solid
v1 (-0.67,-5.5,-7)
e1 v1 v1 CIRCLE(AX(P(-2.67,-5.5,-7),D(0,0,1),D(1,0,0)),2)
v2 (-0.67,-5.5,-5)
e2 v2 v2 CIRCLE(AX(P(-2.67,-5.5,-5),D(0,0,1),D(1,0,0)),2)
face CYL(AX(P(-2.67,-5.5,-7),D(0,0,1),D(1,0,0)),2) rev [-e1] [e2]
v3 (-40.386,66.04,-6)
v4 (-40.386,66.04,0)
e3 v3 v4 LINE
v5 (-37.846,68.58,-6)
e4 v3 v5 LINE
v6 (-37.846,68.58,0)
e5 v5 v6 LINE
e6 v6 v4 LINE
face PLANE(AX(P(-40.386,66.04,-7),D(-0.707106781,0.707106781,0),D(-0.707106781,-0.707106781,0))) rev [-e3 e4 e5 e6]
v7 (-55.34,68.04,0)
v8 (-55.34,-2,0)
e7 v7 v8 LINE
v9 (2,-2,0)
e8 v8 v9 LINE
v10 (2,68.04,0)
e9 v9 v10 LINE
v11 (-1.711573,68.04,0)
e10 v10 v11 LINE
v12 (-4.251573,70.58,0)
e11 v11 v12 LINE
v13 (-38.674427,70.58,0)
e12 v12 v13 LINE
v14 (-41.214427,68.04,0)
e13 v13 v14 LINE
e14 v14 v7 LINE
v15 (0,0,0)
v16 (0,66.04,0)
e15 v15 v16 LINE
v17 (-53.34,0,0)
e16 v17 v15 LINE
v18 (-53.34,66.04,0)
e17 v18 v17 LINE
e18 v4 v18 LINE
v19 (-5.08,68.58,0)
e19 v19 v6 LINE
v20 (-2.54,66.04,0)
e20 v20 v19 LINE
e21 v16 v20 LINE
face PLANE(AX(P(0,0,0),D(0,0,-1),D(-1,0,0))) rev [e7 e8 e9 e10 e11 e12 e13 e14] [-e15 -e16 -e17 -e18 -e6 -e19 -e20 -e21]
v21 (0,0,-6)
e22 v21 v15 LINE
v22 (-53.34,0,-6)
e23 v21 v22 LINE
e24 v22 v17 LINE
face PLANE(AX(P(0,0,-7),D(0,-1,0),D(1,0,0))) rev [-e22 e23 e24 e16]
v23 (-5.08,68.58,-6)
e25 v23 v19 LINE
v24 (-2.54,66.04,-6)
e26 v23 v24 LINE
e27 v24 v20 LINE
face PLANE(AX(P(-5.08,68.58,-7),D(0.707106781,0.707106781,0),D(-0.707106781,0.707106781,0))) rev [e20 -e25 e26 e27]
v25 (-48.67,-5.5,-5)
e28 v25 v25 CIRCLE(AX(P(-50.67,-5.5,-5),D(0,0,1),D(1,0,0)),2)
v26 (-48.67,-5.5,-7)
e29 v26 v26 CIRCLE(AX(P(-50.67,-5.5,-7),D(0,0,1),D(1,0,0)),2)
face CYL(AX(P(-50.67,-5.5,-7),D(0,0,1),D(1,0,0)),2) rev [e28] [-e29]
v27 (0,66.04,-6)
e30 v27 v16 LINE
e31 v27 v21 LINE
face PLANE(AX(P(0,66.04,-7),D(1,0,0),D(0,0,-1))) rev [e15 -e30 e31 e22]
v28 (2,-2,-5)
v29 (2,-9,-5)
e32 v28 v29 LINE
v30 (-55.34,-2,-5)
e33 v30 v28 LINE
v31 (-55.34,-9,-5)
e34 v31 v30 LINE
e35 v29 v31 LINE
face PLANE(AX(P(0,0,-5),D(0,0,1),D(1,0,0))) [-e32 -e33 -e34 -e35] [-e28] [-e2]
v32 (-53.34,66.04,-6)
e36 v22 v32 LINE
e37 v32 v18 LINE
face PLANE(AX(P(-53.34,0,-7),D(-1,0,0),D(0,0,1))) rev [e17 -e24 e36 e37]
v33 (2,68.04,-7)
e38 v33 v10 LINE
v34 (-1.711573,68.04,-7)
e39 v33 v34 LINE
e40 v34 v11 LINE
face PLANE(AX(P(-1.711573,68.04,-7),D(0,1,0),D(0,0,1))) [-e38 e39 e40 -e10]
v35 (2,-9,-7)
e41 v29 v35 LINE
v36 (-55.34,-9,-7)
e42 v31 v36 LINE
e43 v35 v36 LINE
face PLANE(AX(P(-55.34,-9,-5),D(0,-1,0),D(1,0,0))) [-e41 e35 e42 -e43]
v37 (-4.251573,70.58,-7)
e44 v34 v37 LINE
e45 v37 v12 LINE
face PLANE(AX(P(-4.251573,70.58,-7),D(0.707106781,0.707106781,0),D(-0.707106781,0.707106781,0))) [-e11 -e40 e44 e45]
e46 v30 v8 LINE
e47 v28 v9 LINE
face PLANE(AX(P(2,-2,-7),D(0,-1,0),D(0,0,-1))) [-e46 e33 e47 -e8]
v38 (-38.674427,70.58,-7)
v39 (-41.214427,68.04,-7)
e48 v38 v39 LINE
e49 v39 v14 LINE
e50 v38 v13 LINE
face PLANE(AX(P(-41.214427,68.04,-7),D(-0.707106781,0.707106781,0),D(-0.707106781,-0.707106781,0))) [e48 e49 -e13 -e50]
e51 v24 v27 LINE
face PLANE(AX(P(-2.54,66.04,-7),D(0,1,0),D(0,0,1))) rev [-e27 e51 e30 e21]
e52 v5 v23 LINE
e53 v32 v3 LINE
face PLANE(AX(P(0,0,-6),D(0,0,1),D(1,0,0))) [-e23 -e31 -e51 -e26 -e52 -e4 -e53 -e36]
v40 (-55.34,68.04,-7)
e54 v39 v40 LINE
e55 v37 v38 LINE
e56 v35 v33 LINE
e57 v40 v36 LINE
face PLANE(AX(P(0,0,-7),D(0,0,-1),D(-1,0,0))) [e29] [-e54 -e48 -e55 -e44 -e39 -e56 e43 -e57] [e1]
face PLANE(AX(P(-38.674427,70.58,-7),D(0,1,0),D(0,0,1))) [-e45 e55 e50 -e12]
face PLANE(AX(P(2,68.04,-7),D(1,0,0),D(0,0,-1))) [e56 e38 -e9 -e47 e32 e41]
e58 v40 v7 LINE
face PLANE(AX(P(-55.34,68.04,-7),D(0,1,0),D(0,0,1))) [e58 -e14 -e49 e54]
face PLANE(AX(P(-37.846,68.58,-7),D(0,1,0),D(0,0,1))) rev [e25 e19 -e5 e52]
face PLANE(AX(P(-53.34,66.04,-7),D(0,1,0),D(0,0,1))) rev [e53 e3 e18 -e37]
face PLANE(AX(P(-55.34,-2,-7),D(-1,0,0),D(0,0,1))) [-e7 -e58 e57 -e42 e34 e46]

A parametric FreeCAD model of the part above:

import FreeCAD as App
import Part
import Sketcher

V = App.Vector
Q = App.Units.Quantity


def add_polygon(sketch, points):
    """Adds a closed chain of lines whose ends are joined by coincident constraints."""
    first, n = sketch.GeometryCount, len(points)
    for a, b in zip(points, points[1:] + points[:1]):
        sketch.addGeometry(Part.LineSegment(App.Vector(*a, 0), App.Vector(*b, 0)), False)
    for i in range(n):
        sketch.addConstraint(Sketcher.Constraint("Coincident", first + i, 2, first + (i + 1) % n, 1))

doc = App.newDocument("Part")
body = doc.addObject("PartDesign::Body", "Body")

# Sketch on XY plane
sketch1 = body.newObject("Sketcher::SketchObject", "Sketch")
sketch1.AttachmentSupport = (doc.getObject("XY_Plane"), [""])
sketch1.MapMode = "FlatFace"
add_polygon(sketch1, [(-55.34, -2), (2, -2), (2, 68.04), (-1.711573, 68.04), (-4.251573, 70.58), (-38.674427, 70.58), (-41.214427, 68.04), (-55.34, 68.04)])  # lines 0-7
add_polygon(sketch1, [(-53.34, 0), (-53.34, 66.04), (-40.386, 66.04), (-37.846, 68.58), (-5.08, 68.58), (-2.54, 66.04), (0, 66.04), (0, 0)])  # lines 8-15
sketch1.addConstraint([
    Sketcher.Constraint("Horizontal", 0),
    Sketcher.Constraint("Vertical", 1),
    Sketcher.Constraint("Horizontal", 2),
    Sketcher.Constraint("Horizontal", 4),
    Sketcher.Constraint("Horizontal", 6),
    Sketcher.Constraint("Vertical", 7),
    Sketcher.Constraint("Vertical", 8),
    Sketcher.Constraint("Horizontal", 9),
    Sketcher.Constraint("Horizontal", 11),
    Sketcher.Constraint("Horizontal", 13),
    Sketcher.Constraint("Vertical", 14),
    Sketcher.Constraint("Horizontal", 15),
    Sketcher.Constraint("Coincident", 14, 2, -1, 1),
    Sketcher.Constraint("Perpendicular", 3, 5),
    Sketcher.Constraint("Parallel", 5, 10),
    Sketcher.Constraint("Perpendicular", 10, 12),
    Sketcher.Constraint("Horizontal", 2, 2, 5, 2),
    Sketcher.Constraint("Horizontal", 9, 2, 12, 2),
    Sketcher.Constraint("Equal", 3, 5),
    Sketcher.Constraint("Equal", 5, 10),
    Sketcher.Constraint("DistanceX", 13, 1, 13, 2, Q("0.1 in")),
    Sketcher.Constraint("DistanceX", 15, 2, 15, 1, Q("2.1 in")),
    Sketcher.Constraint("DistanceY", 8, 1, 8, 2, Q("2.6 in")),
    Sketcher.Constraint("DistanceX", 9, 1, 9, 2, Q("0.51 in")),
    Sketcher.Constraint("DistanceX", 11, 1, 11, 2, Q("1.29 in")),
    Sketcher.Constraint("DistanceX", 0, 1, 0, 2, Q("57.34 mm")),
    Sketcher.Constraint("DistanceY", 1, 1, 1, 2, Q("70.04 mm")),
    Sketcher.Constraint("DistanceX", -1, 1, 0, 2, Q("2 mm")),
    Sketcher.Constraint("DistanceY", 0, 2, -1, 1, Q("2 mm")),
    Sketcher.Constraint("DistanceX", 2, 2, 2, 1, Q("3.711573 mm")),
    Sketcher.Constraint("DistanceX", 4, 2, 4, 1, Q("34.422854 mm")),
])
pad1 = body.newObject("PartDesign::Pad", "Pad")
pad1.Profile = sketch1
pad1.Length = 7
pad1.Reversed = True

# Sketch on XY plane
sketch2 = body.newObject("Sketcher::SketchObject", "Sketch001")
sketch2.AttachmentSupport = (doc.getObject("XY_Plane"), [""])
sketch2.MapMode = "FlatFace"
sketch2.AttachmentOffset = App.Placement(V(0, 0, -7), App.Rotation())
add_polygon(sketch2, [(0, 0), (-53.34, 0), (-53.34, 66.04), (-40.386, 66.04), (-37.846, 68.58), (-5.08, 68.58), (-2.54, 66.04), (0, 66.04)])  # lines 0-7
sketch2.addConstraint([
    Sketcher.Constraint("Horizontal", 0),
    Sketcher.Constraint("Vertical", 1),
    Sketcher.Constraint("Horizontal", 2),
    Sketcher.Constraint("Horizontal", 4),
    Sketcher.Constraint("Horizontal", 6),
    Sketcher.Constraint("Vertical", 7),
    Sketcher.Constraint("Coincident", 7, 2, -1, 1),
    Sketcher.Constraint("Perpendicular", 3, 5),
    Sketcher.Constraint("Horizontal", 2, 2, 5, 2),
    Sketcher.Constraint("Equal", 3, 5),
    Sketcher.Constraint("DistanceX", 0, 2, 0, 1, Q("2.1 in")),
    Sketcher.Constraint("DistanceX", 6, 1, 6, 2, Q("0.1 in")),
    Sketcher.Constraint("DistanceY", 1, 1, 1, 2, Q("2.6 in")),
    Sketcher.Constraint("DistanceX", 2, 1, 2, 2, Q("0.51 in")),
    Sketcher.Constraint("DistanceX", 4, 1, 4, 2, Q("1.29 in")),
])
pad2 = body.newObject("PartDesign::Pad", "Pad001")
pad2.Profile = sketch2
pad2.Length = 1

# Sketch on XY plane
sketch3 = body.newObject("Sketcher::SketchObject", "Sketch002")
sketch3.AttachmentSupport = (doc.getObject("XY_Plane"), [""])
sketch3.MapMode = "FlatFace"
sketch3.AttachmentOffset = App.Placement(V(0, 0, -7), App.Rotation())
add_polygon(sketch3, [(2, -2), (2, -9), (-55.34, -9), (-55.34, -2)])  # lines 0-3
sketch3.addConstraint([
    Sketcher.Constraint("Vertical", 0),
    Sketcher.Constraint("Horizontal", 1),
    Sketcher.Constraint("Vertical", 2),
    Sketcher.Constraint("Horizontal", 3),
    Sketcher.Constraint("DistanceX", 1, 2, 1, 1, Q("57.34 mm")),
    Sketcher.Constraint("DistanceY", 0, 2, 0, 1, Q("7 mm")),
    Sketcher.Constraint("DistanceX", -1, 1, 0, 2, Q("2 mm")),
    Sketcher.Constraint("DistanceY", 0, 2, -1, 1, Q("9 mm")),
])
pad3 = body.newObject("PartDesign::Pad", "Pad002")
pad3.Profile = sketch3
pad3.Length = 2

# Sketch on XY plane
sketch4 = body.newObject("Sketcher::SketchObject", "Sketch003")
sketch4.AttachmentSupport = (doc.getObject("XY_Plane"), [""])
sketch4.MapMode = "FlatFace"
sketch4.AttachmentOffset = App.Placement(V(0, 0, -5), App.Rotation())
sketch4.addGeometry([
    Part.Circle(V(-2.67, -5.5, 0), V(0, 0, 1), 2),
    Part.Circle(V(-50.67, -5.5, 0), V(0, 0, 1), 2),
], False)
sketch4.addConstraint([
    Sketcher.Constraint("Equal", 0, 1),
    Sketcher.Constraint("Horizontal", 0, 3, 1, 3),
    Sketcher.Constraint("Diameter", 0, Q("4 mm")),
    Sketcher.Constraint("DistanceX", 0, 3, -1, 1, Q("2.67 mm")),
    Sketcher.Constraint("DistanceY", 0, 3, -1, 1, Q("5.5 mm")),
    Sketcher.Constraint("DistanceX", 1, 3, -1, 1, Q("50.67 mm")),
])
pocket1 = body.newObject("PartDesign::Pocket", "Pocket")
pocket1.Profile = sketch4
pocket1.Length = 2

doc.recompute()
